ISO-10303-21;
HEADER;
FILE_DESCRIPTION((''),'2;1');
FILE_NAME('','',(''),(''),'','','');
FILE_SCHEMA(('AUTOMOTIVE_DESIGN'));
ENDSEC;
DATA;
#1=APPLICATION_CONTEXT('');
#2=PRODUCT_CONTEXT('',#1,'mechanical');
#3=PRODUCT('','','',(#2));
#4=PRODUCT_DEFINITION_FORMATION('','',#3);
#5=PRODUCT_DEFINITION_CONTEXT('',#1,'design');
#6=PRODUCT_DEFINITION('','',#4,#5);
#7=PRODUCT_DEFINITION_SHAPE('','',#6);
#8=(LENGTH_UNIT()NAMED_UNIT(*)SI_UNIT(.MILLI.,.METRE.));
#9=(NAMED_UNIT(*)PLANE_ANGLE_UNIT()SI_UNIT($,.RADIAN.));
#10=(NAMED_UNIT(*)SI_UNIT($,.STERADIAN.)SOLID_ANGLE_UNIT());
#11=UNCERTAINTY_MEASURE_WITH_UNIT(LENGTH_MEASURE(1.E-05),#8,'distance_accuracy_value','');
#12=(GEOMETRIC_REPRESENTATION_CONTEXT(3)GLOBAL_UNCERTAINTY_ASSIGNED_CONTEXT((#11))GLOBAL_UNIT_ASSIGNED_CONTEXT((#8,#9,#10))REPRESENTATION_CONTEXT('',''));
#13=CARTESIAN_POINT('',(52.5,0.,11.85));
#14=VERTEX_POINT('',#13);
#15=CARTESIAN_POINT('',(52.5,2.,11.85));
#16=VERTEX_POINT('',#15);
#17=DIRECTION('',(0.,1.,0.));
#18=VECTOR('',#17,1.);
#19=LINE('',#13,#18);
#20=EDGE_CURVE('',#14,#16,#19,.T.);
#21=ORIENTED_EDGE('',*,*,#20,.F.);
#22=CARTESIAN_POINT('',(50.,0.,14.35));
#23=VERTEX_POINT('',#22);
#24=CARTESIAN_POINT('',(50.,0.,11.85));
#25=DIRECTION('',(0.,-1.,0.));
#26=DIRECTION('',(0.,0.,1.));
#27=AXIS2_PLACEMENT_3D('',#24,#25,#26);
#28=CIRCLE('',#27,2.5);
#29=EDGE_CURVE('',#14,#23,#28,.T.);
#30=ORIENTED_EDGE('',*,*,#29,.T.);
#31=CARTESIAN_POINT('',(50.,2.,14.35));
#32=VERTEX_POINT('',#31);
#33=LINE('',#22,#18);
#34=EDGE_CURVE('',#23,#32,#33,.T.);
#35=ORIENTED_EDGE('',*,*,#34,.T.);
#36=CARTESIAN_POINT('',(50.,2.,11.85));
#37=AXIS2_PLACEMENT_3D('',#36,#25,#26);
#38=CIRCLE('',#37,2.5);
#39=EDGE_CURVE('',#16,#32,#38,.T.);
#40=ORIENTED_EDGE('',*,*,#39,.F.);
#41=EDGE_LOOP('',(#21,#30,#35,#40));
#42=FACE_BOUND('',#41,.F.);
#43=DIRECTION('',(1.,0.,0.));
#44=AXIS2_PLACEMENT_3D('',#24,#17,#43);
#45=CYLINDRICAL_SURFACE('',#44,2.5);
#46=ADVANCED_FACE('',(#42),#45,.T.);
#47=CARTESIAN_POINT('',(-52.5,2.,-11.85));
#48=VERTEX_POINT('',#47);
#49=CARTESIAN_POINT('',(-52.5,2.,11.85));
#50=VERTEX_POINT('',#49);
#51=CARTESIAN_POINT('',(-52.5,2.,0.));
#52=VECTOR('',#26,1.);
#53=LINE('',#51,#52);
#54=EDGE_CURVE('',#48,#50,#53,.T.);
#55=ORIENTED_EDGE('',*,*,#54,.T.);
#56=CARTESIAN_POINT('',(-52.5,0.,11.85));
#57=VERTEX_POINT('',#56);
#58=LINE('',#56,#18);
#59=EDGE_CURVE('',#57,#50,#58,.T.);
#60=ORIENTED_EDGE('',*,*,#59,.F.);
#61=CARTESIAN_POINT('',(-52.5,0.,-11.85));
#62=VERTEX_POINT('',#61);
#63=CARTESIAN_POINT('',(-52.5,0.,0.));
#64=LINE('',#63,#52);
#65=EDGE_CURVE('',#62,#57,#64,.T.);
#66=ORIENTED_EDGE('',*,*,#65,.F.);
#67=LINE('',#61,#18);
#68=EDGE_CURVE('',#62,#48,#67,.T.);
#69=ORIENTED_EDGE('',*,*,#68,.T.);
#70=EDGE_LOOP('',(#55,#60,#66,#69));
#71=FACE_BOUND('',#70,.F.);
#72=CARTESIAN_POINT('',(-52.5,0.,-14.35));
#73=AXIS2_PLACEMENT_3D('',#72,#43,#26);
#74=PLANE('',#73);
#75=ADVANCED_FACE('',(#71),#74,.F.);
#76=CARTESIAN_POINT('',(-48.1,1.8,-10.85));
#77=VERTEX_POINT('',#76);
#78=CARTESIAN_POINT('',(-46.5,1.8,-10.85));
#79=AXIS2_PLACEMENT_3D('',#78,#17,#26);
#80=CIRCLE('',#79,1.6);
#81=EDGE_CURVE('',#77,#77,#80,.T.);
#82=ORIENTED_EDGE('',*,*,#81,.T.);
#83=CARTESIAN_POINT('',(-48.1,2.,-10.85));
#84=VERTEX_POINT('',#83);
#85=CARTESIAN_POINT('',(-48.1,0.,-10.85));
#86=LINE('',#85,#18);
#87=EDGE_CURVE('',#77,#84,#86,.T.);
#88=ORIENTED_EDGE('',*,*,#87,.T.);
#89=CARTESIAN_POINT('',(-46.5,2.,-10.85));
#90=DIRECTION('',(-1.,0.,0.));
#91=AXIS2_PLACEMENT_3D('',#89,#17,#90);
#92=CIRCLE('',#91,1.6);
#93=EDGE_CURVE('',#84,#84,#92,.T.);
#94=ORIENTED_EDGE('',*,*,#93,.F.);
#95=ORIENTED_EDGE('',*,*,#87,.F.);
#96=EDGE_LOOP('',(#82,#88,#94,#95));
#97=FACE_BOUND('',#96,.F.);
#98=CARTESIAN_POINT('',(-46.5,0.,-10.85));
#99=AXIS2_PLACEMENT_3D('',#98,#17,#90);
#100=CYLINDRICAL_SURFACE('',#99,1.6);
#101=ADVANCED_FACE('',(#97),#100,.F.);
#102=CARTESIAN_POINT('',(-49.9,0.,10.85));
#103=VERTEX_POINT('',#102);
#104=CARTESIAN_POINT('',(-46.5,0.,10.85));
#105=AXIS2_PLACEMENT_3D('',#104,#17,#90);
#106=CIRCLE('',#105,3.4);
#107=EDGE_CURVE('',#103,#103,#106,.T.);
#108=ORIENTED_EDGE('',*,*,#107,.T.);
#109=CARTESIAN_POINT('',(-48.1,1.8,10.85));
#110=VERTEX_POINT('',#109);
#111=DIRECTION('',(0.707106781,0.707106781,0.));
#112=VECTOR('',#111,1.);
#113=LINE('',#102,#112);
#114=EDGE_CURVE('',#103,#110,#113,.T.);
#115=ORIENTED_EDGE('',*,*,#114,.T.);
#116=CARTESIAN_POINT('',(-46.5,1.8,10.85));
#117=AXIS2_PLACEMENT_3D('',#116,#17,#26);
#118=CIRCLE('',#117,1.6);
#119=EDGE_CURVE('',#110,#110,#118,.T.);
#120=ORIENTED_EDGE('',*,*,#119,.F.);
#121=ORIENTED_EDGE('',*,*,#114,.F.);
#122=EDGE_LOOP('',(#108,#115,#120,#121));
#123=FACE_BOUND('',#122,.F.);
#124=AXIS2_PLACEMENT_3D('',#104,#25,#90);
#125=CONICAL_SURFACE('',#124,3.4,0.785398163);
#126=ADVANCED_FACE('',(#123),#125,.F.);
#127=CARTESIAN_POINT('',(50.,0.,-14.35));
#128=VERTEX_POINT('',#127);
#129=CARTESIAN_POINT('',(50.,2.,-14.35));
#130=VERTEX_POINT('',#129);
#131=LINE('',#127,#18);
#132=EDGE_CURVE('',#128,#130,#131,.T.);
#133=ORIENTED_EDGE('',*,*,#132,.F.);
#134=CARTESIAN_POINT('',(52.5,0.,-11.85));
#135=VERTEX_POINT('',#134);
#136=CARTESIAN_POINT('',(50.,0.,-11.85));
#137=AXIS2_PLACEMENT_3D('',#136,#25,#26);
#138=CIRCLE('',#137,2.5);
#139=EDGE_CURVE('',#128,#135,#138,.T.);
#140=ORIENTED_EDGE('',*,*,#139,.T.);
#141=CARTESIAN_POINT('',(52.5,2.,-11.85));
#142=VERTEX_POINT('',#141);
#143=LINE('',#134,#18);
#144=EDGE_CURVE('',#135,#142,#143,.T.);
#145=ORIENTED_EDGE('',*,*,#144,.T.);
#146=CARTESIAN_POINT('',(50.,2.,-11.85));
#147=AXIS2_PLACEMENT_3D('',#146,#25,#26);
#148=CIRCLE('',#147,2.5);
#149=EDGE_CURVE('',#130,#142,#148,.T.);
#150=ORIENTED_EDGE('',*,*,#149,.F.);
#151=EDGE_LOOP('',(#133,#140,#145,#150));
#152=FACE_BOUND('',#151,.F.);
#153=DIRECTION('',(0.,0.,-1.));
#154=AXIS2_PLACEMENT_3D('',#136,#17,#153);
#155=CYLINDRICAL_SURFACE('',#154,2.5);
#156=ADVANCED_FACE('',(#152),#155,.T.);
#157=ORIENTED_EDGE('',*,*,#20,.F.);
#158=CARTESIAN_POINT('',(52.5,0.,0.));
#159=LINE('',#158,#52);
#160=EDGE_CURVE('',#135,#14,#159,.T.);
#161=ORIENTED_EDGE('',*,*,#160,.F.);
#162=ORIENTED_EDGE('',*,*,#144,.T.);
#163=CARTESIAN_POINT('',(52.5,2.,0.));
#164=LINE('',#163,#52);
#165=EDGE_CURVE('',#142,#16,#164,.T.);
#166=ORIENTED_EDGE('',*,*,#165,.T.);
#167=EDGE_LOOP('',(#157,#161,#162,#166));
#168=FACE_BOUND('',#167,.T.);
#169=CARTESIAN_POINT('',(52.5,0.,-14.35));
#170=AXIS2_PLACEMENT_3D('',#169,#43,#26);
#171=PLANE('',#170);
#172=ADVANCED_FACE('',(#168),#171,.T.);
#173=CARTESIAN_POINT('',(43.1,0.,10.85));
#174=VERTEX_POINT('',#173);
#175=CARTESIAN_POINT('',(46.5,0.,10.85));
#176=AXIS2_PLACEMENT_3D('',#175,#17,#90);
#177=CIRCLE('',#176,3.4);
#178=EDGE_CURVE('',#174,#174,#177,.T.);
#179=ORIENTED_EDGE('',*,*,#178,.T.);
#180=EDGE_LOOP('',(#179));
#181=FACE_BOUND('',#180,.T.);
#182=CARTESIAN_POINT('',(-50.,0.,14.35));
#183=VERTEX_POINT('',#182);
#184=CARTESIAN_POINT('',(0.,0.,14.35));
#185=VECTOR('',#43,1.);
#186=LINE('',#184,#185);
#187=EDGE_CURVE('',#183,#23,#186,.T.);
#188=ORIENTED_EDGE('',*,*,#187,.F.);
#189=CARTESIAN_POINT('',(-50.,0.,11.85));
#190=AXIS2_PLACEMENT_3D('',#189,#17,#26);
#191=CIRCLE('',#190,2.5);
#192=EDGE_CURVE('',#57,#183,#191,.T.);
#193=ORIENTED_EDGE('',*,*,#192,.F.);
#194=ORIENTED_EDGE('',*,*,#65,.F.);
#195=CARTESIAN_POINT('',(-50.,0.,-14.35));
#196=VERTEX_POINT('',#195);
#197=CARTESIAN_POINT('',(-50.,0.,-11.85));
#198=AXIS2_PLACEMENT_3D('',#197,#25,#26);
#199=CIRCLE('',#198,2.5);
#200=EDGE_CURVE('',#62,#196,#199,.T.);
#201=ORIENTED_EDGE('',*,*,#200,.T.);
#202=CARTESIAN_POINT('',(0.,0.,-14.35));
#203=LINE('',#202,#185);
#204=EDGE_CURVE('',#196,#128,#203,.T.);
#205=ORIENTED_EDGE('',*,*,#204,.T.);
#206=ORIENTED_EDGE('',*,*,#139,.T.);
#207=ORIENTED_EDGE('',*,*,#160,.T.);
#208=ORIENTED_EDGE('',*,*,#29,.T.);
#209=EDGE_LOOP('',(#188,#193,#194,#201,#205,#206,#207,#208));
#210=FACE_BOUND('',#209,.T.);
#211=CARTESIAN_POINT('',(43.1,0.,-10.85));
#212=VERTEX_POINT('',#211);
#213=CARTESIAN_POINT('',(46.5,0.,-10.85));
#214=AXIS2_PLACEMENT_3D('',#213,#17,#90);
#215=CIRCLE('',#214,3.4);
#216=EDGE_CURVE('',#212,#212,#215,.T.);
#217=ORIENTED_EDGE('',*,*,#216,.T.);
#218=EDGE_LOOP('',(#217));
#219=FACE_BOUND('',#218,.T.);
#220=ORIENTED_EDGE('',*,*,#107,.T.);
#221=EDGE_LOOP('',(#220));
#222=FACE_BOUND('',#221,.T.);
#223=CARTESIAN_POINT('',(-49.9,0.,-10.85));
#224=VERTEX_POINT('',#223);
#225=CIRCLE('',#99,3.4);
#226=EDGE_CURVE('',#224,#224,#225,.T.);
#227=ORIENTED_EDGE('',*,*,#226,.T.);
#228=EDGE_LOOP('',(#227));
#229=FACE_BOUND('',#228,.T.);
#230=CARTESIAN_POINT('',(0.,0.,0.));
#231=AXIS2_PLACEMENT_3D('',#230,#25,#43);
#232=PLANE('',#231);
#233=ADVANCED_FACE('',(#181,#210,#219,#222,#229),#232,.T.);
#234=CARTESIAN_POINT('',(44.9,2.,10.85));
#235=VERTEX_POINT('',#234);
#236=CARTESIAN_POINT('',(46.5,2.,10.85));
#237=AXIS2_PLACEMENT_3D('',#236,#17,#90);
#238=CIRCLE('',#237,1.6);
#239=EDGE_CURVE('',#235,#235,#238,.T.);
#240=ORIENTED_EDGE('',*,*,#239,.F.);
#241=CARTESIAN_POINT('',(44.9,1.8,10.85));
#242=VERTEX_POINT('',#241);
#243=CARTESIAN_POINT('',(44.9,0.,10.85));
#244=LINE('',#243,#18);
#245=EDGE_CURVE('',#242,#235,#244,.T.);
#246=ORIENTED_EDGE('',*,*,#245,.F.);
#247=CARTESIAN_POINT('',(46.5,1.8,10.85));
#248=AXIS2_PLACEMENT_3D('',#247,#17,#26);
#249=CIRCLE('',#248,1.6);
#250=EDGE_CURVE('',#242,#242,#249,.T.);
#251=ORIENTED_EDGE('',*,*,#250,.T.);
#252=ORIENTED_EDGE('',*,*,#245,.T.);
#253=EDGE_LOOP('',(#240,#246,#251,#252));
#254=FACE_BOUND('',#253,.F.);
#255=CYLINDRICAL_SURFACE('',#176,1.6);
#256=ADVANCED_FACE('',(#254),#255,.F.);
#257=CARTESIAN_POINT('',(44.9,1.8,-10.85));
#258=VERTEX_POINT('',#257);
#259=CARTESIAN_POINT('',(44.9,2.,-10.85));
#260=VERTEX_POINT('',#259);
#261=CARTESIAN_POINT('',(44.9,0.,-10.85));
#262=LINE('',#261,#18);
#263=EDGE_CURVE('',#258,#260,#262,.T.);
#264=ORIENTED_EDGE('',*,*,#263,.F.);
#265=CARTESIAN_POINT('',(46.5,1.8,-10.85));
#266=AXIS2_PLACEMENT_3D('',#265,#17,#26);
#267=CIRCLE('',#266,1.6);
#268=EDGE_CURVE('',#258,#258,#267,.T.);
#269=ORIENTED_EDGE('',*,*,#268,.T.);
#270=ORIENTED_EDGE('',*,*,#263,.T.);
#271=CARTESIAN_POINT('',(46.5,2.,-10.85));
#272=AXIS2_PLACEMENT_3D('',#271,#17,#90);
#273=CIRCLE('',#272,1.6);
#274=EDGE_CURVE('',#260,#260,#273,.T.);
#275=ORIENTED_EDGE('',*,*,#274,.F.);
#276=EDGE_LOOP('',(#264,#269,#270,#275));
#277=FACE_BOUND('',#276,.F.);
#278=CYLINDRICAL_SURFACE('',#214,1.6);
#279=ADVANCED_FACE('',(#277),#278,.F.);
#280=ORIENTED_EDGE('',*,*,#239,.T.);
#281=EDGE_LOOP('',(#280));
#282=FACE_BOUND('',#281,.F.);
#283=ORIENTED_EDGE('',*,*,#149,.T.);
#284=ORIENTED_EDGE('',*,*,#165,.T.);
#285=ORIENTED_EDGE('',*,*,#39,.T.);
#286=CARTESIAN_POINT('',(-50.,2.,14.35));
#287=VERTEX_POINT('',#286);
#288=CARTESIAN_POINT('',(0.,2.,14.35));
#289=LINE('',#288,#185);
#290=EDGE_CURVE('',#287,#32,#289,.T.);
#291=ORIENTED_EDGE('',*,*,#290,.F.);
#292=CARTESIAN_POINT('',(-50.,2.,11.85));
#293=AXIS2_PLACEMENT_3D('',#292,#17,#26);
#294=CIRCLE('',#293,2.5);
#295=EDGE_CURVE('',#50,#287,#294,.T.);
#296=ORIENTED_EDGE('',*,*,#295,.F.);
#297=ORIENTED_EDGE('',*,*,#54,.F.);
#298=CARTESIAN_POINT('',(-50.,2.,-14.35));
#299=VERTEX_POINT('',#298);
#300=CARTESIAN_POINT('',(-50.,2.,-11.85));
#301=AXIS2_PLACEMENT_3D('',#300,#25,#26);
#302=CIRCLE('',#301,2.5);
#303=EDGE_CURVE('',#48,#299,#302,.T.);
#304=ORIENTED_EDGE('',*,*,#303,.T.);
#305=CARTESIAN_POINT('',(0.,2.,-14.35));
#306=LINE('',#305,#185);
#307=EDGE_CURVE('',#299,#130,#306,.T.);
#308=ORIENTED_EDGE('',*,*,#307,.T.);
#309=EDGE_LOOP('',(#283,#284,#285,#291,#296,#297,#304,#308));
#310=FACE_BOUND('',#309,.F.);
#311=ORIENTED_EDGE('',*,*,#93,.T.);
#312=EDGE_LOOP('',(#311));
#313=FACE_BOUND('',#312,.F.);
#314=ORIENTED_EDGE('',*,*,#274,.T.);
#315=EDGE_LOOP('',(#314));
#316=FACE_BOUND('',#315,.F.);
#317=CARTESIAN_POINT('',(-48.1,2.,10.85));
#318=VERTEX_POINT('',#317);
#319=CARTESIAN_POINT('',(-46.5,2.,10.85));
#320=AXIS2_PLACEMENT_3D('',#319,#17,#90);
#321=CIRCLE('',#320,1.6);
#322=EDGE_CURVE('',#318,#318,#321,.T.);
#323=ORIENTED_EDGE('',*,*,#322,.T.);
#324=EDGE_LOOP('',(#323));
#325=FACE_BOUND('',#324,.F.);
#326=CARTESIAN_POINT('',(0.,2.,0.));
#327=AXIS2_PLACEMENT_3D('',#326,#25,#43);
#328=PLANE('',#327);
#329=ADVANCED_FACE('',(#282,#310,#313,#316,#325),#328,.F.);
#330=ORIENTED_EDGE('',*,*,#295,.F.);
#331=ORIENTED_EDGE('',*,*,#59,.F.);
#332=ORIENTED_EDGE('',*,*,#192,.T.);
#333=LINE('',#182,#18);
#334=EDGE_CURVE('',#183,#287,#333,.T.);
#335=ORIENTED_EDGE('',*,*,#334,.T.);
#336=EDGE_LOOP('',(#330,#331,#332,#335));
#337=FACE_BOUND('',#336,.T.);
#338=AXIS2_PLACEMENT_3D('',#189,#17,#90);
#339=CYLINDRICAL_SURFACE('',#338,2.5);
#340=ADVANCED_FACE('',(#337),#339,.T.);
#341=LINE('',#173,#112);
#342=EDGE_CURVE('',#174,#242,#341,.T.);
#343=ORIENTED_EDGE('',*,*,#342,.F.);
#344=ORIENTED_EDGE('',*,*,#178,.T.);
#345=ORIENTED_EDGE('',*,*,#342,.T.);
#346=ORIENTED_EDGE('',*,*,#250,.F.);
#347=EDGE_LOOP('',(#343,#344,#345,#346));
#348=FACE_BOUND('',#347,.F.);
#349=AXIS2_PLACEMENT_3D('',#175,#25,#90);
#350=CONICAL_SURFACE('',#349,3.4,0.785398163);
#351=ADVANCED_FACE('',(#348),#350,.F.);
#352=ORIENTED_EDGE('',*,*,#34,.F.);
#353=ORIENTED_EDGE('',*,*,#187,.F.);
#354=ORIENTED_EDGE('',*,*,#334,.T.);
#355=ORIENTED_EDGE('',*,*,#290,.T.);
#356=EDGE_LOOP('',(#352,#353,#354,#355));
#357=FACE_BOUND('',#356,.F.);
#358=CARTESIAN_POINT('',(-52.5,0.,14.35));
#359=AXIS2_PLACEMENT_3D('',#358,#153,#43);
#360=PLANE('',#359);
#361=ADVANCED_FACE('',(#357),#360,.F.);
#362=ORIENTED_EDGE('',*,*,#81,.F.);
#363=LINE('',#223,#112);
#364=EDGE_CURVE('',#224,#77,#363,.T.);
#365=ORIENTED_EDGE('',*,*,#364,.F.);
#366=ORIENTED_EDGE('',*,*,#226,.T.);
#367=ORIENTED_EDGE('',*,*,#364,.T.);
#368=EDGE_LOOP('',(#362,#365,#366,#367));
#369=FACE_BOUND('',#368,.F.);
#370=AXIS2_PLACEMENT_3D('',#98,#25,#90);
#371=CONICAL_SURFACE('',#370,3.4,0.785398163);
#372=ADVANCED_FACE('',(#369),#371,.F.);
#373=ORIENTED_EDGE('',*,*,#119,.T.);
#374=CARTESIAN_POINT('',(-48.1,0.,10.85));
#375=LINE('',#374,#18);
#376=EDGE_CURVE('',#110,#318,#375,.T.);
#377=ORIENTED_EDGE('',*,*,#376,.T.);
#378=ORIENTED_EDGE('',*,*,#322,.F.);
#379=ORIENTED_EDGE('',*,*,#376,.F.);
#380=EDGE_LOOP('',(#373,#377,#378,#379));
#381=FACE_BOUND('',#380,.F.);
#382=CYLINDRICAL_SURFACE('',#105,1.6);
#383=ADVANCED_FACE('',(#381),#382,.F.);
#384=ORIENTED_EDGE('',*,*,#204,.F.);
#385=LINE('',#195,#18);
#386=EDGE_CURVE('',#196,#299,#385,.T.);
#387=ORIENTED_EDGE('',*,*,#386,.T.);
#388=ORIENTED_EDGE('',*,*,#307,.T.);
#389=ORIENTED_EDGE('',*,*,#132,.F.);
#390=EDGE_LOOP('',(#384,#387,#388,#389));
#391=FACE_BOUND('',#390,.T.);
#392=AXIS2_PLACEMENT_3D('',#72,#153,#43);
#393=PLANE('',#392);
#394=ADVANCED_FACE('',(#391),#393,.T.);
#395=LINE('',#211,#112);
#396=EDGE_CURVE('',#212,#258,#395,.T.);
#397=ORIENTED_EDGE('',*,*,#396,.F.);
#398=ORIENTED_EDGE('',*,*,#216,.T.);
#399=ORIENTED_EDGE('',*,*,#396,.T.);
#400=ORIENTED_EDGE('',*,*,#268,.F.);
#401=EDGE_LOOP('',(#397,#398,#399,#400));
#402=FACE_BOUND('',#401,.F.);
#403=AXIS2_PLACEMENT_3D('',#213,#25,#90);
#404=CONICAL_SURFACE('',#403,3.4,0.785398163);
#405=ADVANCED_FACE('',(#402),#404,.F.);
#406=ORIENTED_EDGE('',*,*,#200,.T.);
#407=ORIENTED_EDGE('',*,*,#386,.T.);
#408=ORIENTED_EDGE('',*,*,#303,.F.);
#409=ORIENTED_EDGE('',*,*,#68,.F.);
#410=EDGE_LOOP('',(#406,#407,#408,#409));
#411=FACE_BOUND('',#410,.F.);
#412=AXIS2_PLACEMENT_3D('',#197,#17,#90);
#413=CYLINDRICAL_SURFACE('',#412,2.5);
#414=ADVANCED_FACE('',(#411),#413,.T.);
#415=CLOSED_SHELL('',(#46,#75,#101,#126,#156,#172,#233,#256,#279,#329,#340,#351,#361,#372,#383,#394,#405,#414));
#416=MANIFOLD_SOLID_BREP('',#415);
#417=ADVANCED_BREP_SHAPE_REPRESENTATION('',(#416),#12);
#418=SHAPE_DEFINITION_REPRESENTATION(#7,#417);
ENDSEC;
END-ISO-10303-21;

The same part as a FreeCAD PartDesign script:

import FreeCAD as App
import Part
import Sketcher


def edges_at(feature, points):
    """Names of the edges that pass closest to the given points."""
    edges = feature.Shape.Edges
    near = lambda p: min(range(len(edges)), key=lambda i: edges[i].distToShape(Part.Vertex(*p))[0])
    return sorted({f"Edge{near(p) + 1}" for p in points})


def add_polygon(sketch, points):
    """Adds a closed chain of lines whose ends are joined by coincident constraints."""
    first, n = sketch.GeometryCount, len(points)
    for a, b in zip(points, points[1:] + points[:1]):
        sketch.addGeometry(Part.LineSegment(App.Vector(*a, 0), App.Vector(*b, 0)), False)
    for i in range(n):
        sketch.addConstraint(Sketcher.Constraint("Coincident", first + i, 2, first + (i + 1) % n, 1))

doc = App.newDocument("Part")
body = doc.addObject("PartDesign::Body", "Body")

# Sketch on XZ plane
sketch1 = body.newObject("Sketcher::SketchObject", "Sketch")
sketch1.AttachmentSupport = (doc.getObject("XZ_Plane"), [""])
sketch1.MapMode = "FlatFace"
add_polygon(sketch1, [(-52, 14), (-52, -14), (52, -14), (52, 14)])  # lines 0-3
sketch1.addConstraint(Sketcher.Constraint("Vertical", 0))
sketch1.addConstraint(Sketcher.Constraint("Horizontal", 1))
sketch1.addConstraint(Sketcher.Constraint("Vertical", 2))
sketch1.addConstraint(Sketcher.Constraint("Horizontal", 3))
sketch1.addConstraint(Sketcher.Constraint("Symmetric", 0, 2, 2, 2, -1, 1))
sketch1.addConstraint(Sketcher.Constraint("DistanceX", 1, 1, 1, 2, 105.0))
sketch1.addConstraint(Sketcher.Constraint("DistanceY", 0, 2, 0, 1, 28.7))
pad1 = body.newObject("PartDesign::Pad", "Pad")
pad1.Profile = sketch1
pad1.Length = 2
pad1.Reversed = True
doc.recompute()

fillet = body.newObject("PartDesign::Fillet", "Fillet")
fillet.Base = (pad1, edges_at(pad1, [
    (52.5, 1, 14.35),
    (52.5, 1, -14.35),
    (-52.5, 1, 14.35),
    (-52.5, 1, -14.35),
]))
fillet.Radius = 2.5

# Sketch on XZ plane
sketch2 = body.newObject("Sketcher::SketchObject", "Sketch001")
sketch2.AttachmentSupport = (doc.getObject("XZ_Plane"), [""])
sketch2.MapMode = "FlatFace"
sketch2.addGeometry(Part.Circle(App.Vector(46.5, 10.8, 0), App.Vector(0, 0, 1), 1.6), False)
sketch2.addGeometry(Part.Circle(App.Vector(46.5, -10.8, 0), App.Vector(0, 0, 1), 1.6), False)
sketch2.addGeometry(Part.Circle(App.Vector(-46.5, -10.8, 0), App.Vector(0, 0, 1), 1.6), False)
sketch2.addGeometry(Part.Circle(App.Vector(-46.5, 10.8, 0), App.Vector(0, 0, 1), 1.6), False)
sketch2.addConstraint(Sketcher.Constraint("Equal", 0, 1))
sketch2.addConstraint(Sketcher.Constraint("Equal", 1, 2))
sketch2.addConstraint(Sketcher.Constraint("Equal", 2, 3))
sketch2.addConstraint(Sketcher.Constraint("Symmetric", 0, 3, 2, 3, -1, 1))
sketch2.addConstraint(Sketcher.Constraint("Symmetric", 1, 3, 3, 3, -1, 1))
sketch2.addConstraint(Sketcher.Constraint("Symmetric", 1, 3, 2, 3, -2))
sketch2.addConstraint(Sketcher.Constraint("Diameter", 0, 3.2))
sketch2.addConstraint(Sketcher.Constraint("DistanceX", 2, 3, 1, 3, 93.0))
sketch2.addConstraint(Sketcher.Constraint("DistanceY", 1, 3, 0, 3, 21.7))
doc.recompute()
hole = body.newObject("PartDesign::Hole", "Hole")
hole.Profile = sketch2
hole.ThreadType = "None"
hole.Diameter = 3.2
hole.DepthType = "Dimension"
hole.Depth = 25
hole.DrillPoint = "Flat"
hole.HoleCutType = "Countersink"
hole.HoleCutDiameter = 6.8
hole.HoleCutCountersinkAngle = 90

doc.recompute()
